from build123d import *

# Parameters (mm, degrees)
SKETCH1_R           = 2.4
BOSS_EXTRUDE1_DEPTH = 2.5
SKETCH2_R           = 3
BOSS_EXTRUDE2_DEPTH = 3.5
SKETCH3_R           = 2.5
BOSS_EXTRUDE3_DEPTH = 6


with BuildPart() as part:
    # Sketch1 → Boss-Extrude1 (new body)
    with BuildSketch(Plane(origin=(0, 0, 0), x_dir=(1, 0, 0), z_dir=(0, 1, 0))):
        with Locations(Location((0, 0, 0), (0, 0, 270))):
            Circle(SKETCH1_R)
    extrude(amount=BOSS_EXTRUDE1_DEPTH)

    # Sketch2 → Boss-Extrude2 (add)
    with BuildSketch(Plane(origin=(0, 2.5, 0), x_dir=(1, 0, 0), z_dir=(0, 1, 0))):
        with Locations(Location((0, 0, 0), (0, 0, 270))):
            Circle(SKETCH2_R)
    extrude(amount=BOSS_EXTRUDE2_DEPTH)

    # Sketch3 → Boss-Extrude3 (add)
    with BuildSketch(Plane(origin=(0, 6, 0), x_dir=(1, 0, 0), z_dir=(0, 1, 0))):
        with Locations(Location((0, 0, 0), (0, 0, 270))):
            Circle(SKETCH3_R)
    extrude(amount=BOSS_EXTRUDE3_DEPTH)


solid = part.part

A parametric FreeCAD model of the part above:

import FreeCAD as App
import Part
import Sketcher

doc = App.newDocument("Part")
body = doc.addObject("PartDesign::Body", "Body")

sketch1 = body.newObject("Sketcher::SketchObject", "Sketch")
sketch1.AttachmentSupport = (doc.getObject("XZ_Plane"), [""])
sketch1.MapMode = "FlatFace"
sketch1.addGeometry(Part.Circle(App.Vector(0, 0, 0), App.Vector(0, 0, 1), 2.4), False)
sketch1.addConstraint([
    Sketcher.Constraint("Coincident", 0, 3, -1, 1),
    Sketcher.Constraint("Diameter", 0, 4.8),
])
pad1 = body.newObject("PartDesign::Pad", "Pad")
pad1.Profile = sketch1
pad1.Length = 2.5
pad1.Reversed = True

sketch2 = body.newObject("Sketcher::SketchObject", "Sketch001")
sketch2.AttachmentSupport = (doc.getObject("XZ_Plane"), [""])
sketch2.MapMode = "FlatFace"
sketch2.AttachmentOffset = App.Placement(App.Vector(0, 0, -2.5), App.Rotation())
sketch2.addGeometry(Part.Circle(App.Vector(0, 0, 0), App.Vector(0, 0, 1), 3), False)
sketch2.addConstraint([
    Sketcher.Constraint("Coincident", 0, 3, -1, 1),
    Sketcher.Constraint("Diameter", 0, 6.0),
])
pad2 = body.newObject("PartDesign::Pad", "Pad001")
pad2.Profile = sketch2
pad2.Length = 3.5
pad2.Reversed = True

sketch3 = body.newObject("Sketcher::SketchObject", "Sketch002")
sketch3.AttachmentSupport = (doc.getObject("XZ_Plane"), [""])
sketch3.MapMode = "FlatFace"
sketch3.AttachmentOffset = App.Placement(App.Vector(0, 0, -6), App.Rotation())
sketch3.addGeometry(Part.Circle(App.Vector(0, 0, 0), App.Vector(0, 0, 1), 2.5), False)
sketch3.addConstraint([
    Sketcher.Constraint("Coincident", 0, 3, -1, 1),
    Sketcher.Constraint("Diameter", 0, 5.0),
])
pad3 = body.newObject("PartDesign::Pad", "Pad002")
pad3.Profile = sketch3
pad3.Length = 6
pad3.Reversed = True

doc.recompute()
